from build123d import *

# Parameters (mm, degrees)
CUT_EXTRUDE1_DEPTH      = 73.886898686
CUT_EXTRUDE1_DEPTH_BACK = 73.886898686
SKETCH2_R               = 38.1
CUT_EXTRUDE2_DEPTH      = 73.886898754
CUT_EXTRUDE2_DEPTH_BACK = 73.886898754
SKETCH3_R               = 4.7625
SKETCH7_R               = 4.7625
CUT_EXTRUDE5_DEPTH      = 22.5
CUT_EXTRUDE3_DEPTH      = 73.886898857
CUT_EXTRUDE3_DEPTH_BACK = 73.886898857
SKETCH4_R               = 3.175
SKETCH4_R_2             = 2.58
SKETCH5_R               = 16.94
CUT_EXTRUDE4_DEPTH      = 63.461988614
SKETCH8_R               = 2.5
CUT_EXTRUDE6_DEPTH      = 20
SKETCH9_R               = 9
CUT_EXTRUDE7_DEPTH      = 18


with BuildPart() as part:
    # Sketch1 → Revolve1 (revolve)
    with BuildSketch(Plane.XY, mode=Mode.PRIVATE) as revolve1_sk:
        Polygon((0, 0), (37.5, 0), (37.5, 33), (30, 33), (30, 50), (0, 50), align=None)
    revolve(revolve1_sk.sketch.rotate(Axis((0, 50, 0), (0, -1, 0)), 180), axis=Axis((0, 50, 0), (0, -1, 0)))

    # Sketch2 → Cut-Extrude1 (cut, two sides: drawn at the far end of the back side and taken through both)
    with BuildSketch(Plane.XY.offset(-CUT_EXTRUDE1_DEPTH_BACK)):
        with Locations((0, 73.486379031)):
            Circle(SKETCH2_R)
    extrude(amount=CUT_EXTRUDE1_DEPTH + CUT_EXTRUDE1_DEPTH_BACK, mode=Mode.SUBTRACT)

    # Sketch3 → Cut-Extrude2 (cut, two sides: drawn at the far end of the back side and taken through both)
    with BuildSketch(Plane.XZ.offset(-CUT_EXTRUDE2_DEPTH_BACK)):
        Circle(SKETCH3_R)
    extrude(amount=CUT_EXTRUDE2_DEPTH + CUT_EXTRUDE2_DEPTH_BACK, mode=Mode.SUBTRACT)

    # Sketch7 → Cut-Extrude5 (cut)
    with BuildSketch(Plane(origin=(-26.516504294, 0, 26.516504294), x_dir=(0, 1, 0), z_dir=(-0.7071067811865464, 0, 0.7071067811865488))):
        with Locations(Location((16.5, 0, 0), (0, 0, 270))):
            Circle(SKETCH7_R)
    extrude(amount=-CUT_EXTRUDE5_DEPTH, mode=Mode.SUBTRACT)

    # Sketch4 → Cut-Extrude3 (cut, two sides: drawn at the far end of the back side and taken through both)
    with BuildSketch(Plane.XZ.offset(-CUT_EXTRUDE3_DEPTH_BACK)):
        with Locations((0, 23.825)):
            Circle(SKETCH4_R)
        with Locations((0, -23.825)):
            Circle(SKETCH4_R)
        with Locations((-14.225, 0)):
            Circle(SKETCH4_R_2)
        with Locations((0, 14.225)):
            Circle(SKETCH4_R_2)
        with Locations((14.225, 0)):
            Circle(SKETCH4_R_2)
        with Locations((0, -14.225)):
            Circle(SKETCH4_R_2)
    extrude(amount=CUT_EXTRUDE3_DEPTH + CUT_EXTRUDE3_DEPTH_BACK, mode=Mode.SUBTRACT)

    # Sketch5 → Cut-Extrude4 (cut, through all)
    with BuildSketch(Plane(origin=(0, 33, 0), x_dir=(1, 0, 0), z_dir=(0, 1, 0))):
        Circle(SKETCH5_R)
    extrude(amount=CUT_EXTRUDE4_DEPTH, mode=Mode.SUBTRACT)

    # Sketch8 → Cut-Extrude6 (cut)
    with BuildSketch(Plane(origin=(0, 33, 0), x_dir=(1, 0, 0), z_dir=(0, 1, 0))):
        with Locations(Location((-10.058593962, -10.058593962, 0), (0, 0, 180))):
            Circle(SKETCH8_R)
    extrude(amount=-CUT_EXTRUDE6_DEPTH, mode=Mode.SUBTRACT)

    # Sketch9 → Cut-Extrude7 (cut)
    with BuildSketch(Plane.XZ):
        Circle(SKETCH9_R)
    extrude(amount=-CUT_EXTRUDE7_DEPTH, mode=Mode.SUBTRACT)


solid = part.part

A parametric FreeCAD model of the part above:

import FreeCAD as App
import Part
import Sketcher
Q = App.Units.Quantity

doc = App.newDocument("Part")
body = doc.addObject("PartDesign::Body", "Body")

sketch1 = body.newObject("Sketcher::SketchObject", "Sketch")
sketch1.AttachmentSupport = (doc.getObject("XY_Plane"), [""])
sketch1.MapMode = "FlatFace"
sketch1.addGeometry(Part.LineSegment(App.Vector(0, 0, 0), App.Vector(37.5, 0, 0)), False)
sketch1.addGeometry(Part.LineSegment(App.Vector(37.5, 0, 0), App.Vector(37.5, 33, 0)), False)
sketch1.addGeometry(Part.LineSegment(App.Vector(37.5, 33, 0), App.Vector(30, 33, 0)), False)
sketch1.addGeometry(Part.LineSegment(App.Vector(30, 33, 0), App.Vector(30, 50, 0)), False)
sketch1.addGeometry(Part.LineSegment(App.Vector(30, 50, 0), App.Vector(0, 50, 0)), False)
sketch1.addGeometry(Part.LineSegment(App.Vector(0, 50, 0), App.Vector(0, 0, 0)), False)
sketch1.addConstraint(Sketcher.Constraint("Coincident", 0, 2, 1, 1))
sketch1.addConstraint(Sketcher.Constraint("Coincident", 1, 2, 2, 1))
sketch1.addConstraint(Sketcher.Constraint("Coincident", 2, 2, 3, 1))
sketch1.addConstraint(Sketcher.Constraint("Coincident", 3, 2, 4, 1))
sketch1.addConstraint(Sketcher.Constraint("Coincident", 4, 2, 5, 1))
sketch1.addConstraint(Sketcher.Constraint("Coincident", 5, 2, 0, 1))
sketch1.addConstraint(Sketcher.Constraint("Horizontal", 0))
sketch1.addConstraint(Sketcher.Constraint("Vertical", 1))
sketch1.addConstraint(Sketcher.Constraint("Horizontal", 2))
sketch1.addConstraint(Sketcher.Constraint("Vertical", 3))
sketch1.addConstraint(Sketcher.Constraint("Horizontal", 4))
sketch1.addConstraint(Sketcher.Constraint("Vertical", 5))
sketch1.addConstraint(Sketcher.Constraint("Coincident", 5, 2, -1, 1))
sketch1.addConstraint(Sketcher.Constraint("DistanceX", 4, 2, 4, 1, Q("30 mm")))
sketch1.addConstraint(Sketcher.Constraint("DistanceY", 1, 1, 1, 2, Q("33 mm")))
sketch1.addConstraint(Sketcher.Constraint("DistanceY", 3, 1, 3, 2, Q("17 mm")))
sketch1.addConstraint(Sketcher.Constraint("DistanceX", 0, 1, 0, 2, Q("37.5 mm")))
revolution = body.newObject("PartDesign::Revolution", "Revolution")
revolution.Profile = sketch1
revolution.ReferenceAxis = (sketch1, ["V_Axis"])
revolution.Angle = 360

sketch2 = body.newObject("Sketcher::SketchObject", "Sketch001")
sketch2.AttachmentSupport = (doc.getObject("XY_Plane"), [""])
sketch2.MapMode = "FlatFace"
sketch2.addGeometry(Part.Circle(App.Vector(0, 73.486379, 0), App.Vector(0, 0, 1), 38.1), False)
sketch2.addConstraint(Sketcher.Constraint("PointOnObject", 0, 3, -2))
sketch2.addConstraint(Sketcher.Constraint("Diameter", 0, Q("76.2 mm")))
sketch2.addConstraint(Sketcher.Constraint("DistanceY", -1, 1, 0, 3, Q("73.486379 mm")))
pocket1 = body.newObject("PartDesign::Pocket", "Pocket")
pocket1.Profile = sketch2
pocket1.Type = "ThroughAll"
pocket1.Midplane = True

sketch3 = body.newObject("Sketcher::SketchObject", "Sketch002")
sketch3.AttachmentSupport = (doc.getObject("XZ_Plane"), [""])
sketch3.MapMode = "FlatFace"
sketch3.addGeometry(Part.Circle(App.Vector(0, 0, 0), App.Vector(0, 0, 1), 4.7625), False)
sketch3.addConstraint(Sketcher.Constraint("Coincident", 0, 3, -1, 1))
sketch3.addConstraint(Sketcher.Constraint("Diameter", 0, Q("9.525 mm")))
pocket2 = body.newObject("PartDesign::Pocket", "Pocket001")
pocket2.Profile = sketch3
pocket2.Type = "ThroughAll"
pocket2.Midplane = True

sketch4 = body.newObject("Sketcher::SketchObject", "Sketch003")
sketch4.Placement = App.Placement(App.Vector(-26.516504, 0, 26.516504), App.Rotation(App.Vector(0, 1, 0), App.Vector(-0.707106781, 0, -0.707106781), App.Vector(-0.707106781, 0, 0.707106781), "ZXY"))
sketch4.addGeometry(Part.Circle(App.Vector(16.5, 0, 0), App.Vector(0, 0, 1), 4.7625), False)
sketch4.addConstraint(Sketcher.Constraint("PointOnObject", 0, 3, -1))
sketch4.addConstraint(Sketcher.Constraint("Diameter", 0, Q("9.525 mm")))
sketch4.addConstraint(Sketcher.Constraint("DistanceX", -1, 1, 0, 3, Q("16.5 mm")))
pocket3 = body.newObject("PartDesign::Pocket", "Pocket002")
pocket3.Profile = sketch4
pocket3.Length = 22.5

sketch5 = body.newObject("Sketcher::SketchObject", "Sketch004")
sketch5.AttachmentSupport = (doc.getObject("XZ_Plane"), [""])
sketch5.MapMode = "FlatFace"
sketch5.addGeometry(Part.Circle(App.Vector(0, 23.825, 0), App.Vector(0, 0, 1), 3.175), False)
sketch5.addGeometry(Part.Circle(App.Vector(0, -23.825, 0), App.Vector(0, 0, 1), 3.175), False)
sketch5.addGeometry(Part.Circle(App.Vector(-14.225, 0, 0), App.Vector(0, 0, 1), 2.58), False)
sketch5.addGeometry(Part.Circle(App.Vector(0, 14.225, 0), App.Vector(0, 0, 1), 2.58), False)
sketch5.addGeometry(Part.Circle(App.Vector(14.225, 0, 0), App.Vector(0, 0, 1), 2.58), False)
sketch5.addGeometry(Part.Circle(App.Vector(0, -14.225, 0), App.Vector(0, 0, 1), 2.58), False)
sketch5.addConstraint(Sketcher.Constraint("Equal", 0, 1))
sketch5.addConstraint(Sketcher.Constraint("Equal", 2, 3))
sketch5.addConstraint(Sketcher.Constraint("Equal", 3, 4))
sketch5.addConstraint(Sketcher.Constraint("Equal", 4, 5))
sketch5.addConstraint(Sketcher.Constraint("Symmetric", 0, 3, 1, 3, -1, 1))
sketch5.addConstraint(Sketcher.Constraint("Symmetric", 2, 3, 4, 3, -1, 1))
sketch5.addConstraint(Sketcher.Constraint("Symmetric", 3, 3, 5, 3, -1, 1))
sketch5.addConstraint(Sketcher.Constraint("PointOnObject", 0, 3, -2))
sketch5.addConstraint(Sketcher.Constraint("PointOnObject", 2, 3, -1))
sketch5.addConstraint(Sketcher.Constraint("PointOnObject", 3, 3, -2))
sketch5.addConstraint(Sketcher.Constraint("Diameter", 0, Q("6.35 mm")))
sketch5.addConstraint(Sketcher.Constraint("Diameter", 2, Q("5.16 mm")))
sketch5.addConstraint(Sketcher.Constraint("DistanceY", 3, 3, 0, 3, Q("9.6 mm")))
sketch5.addConstraint(Sketcher.Constraint("DistanceY", 1, 3, 0, 3, Q("47.65 mm")))
sketch5.addConstraint(Sketcher.Constraint("DistanceX", 2, 3, 4, 3, Q("28.45 mm")))
pocket4 = body.newObject("PartDesign::Pocket", "Pocket003")
pocket4.Profile = sketch5
pocket4.Type = "ThroughAll"
pocket4.Midplane = True

sketch6 = body.newObject("Sketcher::SketchObject", "Sketch005")
sketch6.AttachmentSupport = (doc.getObject("XZ_Plane"), [""])
sketch6.MapMode = "FlatFace"
sketch6.AttachmentOffset = App.Placement(App.Vector(0, 0, -33), App.Rotation())
sketch6.addGeometry(Part.Circle(App.Vector(0, 0, 0), App.Vector(0, 0, 1), 16.94), False)
sketch6.addConstraint(Sketcher.Constraint("Coincident", 0, 3, -1, 1))
sketch6.addConstraint(Sketcher.Constraint("Diameter", 0, Q("33.88 mm")))
pocket5 = body.newObject("PartDesign::Pocket", "Pocket004")
pocket5.Profile = sketch6
pocket5.Type = "ThroughAll"

sketch7 = body.newObject("Sketcher::SketchObject", "Sketch006")
sketch7.AttachmentSupport = (doc.getObject("XZ_Plane"), [""])
sketch7.MapMode = "FlatFace"
sketch7.AttachmentOffset = App.Placement(App.Vector(0, 0, -33), App.Rotation())
sketch7.addGeometry(Part.Circle(App.Vector(-10.058594, 10.058594, 0), App.Vector(0, 0, 1), 2.5), False)
sketch7.addConstraint(Sketcher.Constraint("Diameter", 0, Q("5 mm")))
sketch7.addConstraint(Sketcher.Constraint("DistanceX", 0, 3, -1, 1, Q("10.058594 mm")))
sketch7.addConstraint(Sketcher.Constraint("DistanceY", -1, 1, 0, 3, Q("10.058594 mm")))
pocket6 = body.newObject("PartDesign::Pocket", "Pocket005")
pocket6.Profile = sketch7
pocket6.Length = 20
pocket6.Reversed = True

sketch8 = body.newObject("Sketcher::SketchObject", "Sketch007")
sketch8.AttachmentSupport = (doc.getObject("XZ_Plane"), [""])
sketch8.MapMode = "FlatFace"
sketch8.addGeometry(Part.Circle(App.Vector(0, 0, 0), App.Vector(0, 0, 1), 9), False)
sketch8.addConstraint(Sketcher.Constraint("Coincident", 0, 3, -1, 1))
sketch8.addConstraint(Sketcher.Constraint("Diameter", 0, Q("18 mm")))
pocket7 = body.newObject("PartDesign::Pocket", "Pocket006")
pocket7.Profile = sketch8
pocket7.Length = 18

doc.recompute()
